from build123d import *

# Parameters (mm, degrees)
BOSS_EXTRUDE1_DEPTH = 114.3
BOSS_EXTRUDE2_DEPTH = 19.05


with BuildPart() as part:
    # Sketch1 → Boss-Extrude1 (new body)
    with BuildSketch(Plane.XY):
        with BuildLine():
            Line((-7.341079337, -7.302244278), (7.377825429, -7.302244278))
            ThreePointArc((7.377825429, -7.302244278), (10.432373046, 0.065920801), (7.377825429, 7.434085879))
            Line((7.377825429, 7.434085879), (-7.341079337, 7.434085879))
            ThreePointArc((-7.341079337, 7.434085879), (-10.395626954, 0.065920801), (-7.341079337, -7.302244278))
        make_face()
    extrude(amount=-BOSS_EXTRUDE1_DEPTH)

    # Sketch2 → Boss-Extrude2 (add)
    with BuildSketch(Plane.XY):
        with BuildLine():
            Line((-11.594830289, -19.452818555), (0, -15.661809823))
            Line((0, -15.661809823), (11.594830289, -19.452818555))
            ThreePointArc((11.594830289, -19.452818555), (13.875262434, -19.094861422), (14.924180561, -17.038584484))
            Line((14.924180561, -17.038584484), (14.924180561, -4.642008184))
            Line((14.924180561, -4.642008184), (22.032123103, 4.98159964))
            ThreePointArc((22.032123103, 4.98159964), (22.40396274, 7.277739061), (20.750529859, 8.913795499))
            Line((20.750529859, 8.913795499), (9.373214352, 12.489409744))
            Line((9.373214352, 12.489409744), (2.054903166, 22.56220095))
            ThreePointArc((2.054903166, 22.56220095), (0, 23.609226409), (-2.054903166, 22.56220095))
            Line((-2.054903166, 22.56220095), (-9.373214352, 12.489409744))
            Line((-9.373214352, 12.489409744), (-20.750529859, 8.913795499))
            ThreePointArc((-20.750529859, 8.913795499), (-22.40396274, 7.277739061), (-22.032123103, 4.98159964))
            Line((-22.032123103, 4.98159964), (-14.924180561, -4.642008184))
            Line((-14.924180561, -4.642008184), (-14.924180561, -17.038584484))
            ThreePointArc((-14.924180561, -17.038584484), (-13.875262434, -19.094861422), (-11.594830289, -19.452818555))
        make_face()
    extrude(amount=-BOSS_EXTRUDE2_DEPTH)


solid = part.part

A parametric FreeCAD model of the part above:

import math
import FreeCAD as App
import Part
import Sketcher
Q = App.Units.Quantity

doc = App.newDocument("Part")
body = doc.addObject("PartDesign::Body", "Body")

# Sketch on XY plane
sketch1 = body.newObject("Sketcher::SketchObject", "Sketch")
sketch1.AttachmentSupport = (doc.getObject("XY_Plane"), [""])
sketch1.MapMode = "FlatFace"
sketch1.addGeometry([
    Part.LineSegment(App.Vector(-7.341079, -7.302244, 0), App.Vector(7.377825, -7.302244, 0)),
    Part.ArcOfCircle(Part.Circle(App.Vector(0.018373, 0.065921, 0), App.Vector(0, 0, 1), 10.414), math.radians(-45.033896), math.radians(45.033896)),
    Part.LineSegment(App.Vector(7.377825, 7.434086, 0), App.Vector(-7.341079, 7.434086, 0)),
    Part.ArcOfCircle(Part.Circle(App.Vector(0.018373, 0.065921, 0), App.Vector(0, 0, 1), 10.414), math.radians(134.966104), math.radians(225.033896)),
], False)
sketch1.addConstraint([
    Sketcher.Constraint("Coincident", 0, 2, 1, 1),
    Sketcher.Constraint("Coincident", 1, 2, 2, 1),
    Sketcher.Constraint("Coincident", 2, 2, 3, 1),
    Sketcher.Constraint("Coincident", 3, 2, 0, 1),
    Sketcher.Constraint("Horizontal", 0),
    Sketcher.Constraint("Horizontal", 2),
    Sketcher.Constraint("Coincident", 3, 3, 1, 3),
    Sketcher.Constraint("Equal", 1, 3),
    Sketcher.Constraint("Vertical", 0, 2, 1, 2),
    Sketcher.Constraint("Radius", 1, Q("0.41 in")),
    Sketcher.Constraint("DistanceX", 0, 1, 0, 2, Q("14.718905 mm")),
    Sketcher.Constraint("DistanceY", -1, 1, 1, 3, Q("0.065921 mm")),
    Sketcher.Constraint("DistanceX", 2, 2, -1, 1, Q("7.341079 mm")),
])
pad1 = body.newObject("PartDesign::Pad", "Pad")
pad1.Profile = sketch1
pad1.Length = Q("4.5 in")
pad1.Reversed = True

# Sketch on XY plane
sketch2 = body.newObject("Sketcher::SketchObject", "Sketch001")
sketch2.AttachmentSupport = (doc.getObject("XY_Plane"), [""])
sketch2.MapMode = "FlatFace"
sketch2.addGeometry([
    Part.LineSegment(App.Vector(-11.59483, -19.452819, 0), App.Vector(0, -15.66181, 0)),  # 0
    Part.LineSegment(App.Vector(0, -15.66181, 0), App.Vector(11.59483, -19.452819, 0)),  # 1
    Part.ArcOfCircle(Part.Circle(App.Vector(12.384181, -17.038584, 0), App.Vector(0, 0, 1), 2.54), math.radians(-108.105509), math.radians(0)),  # 2
    Part.LineSegment(App.Vector(14.924181, -17.038584, 0), App.Vector(14.924181, -4.642008, 0)),  # 3
    Part.LineSegment(App.Vector(14.924181, -4.642008, 0), App.Vector(22.032123, 4.9816, 0)),  # 4
    Part.ArcOfCircle(Part.Circle(App.Vector(19.988992, 6.490645, 0), App.Vector(0, 0, 1), 2.54), math.radians(-36.449366), math.radians(72.553332)),  # 5
    Part.LineSegment(App.Vector(20.75053, 8.913795, 0), App.Vector(9.373214, 12.48941, 0)),  # 6
    Part.LineSegment(App.Vector(9.373214, 12.48941, 0), App.Vector(2.054903, 22.562201, 0)),  # 7
    Part.ArcOfCircle(Part.Circle(App.Vector(0, 21.069226, 0), App.Vector(0, 0, 1), 2.54), math.radians(36), math.radians(144)),  # 8
    Part.LineSegment(App.Vector(-2.054903, 22.562201, 0), App.Vector(-9.373214, 12.48941, 0)),  # 9
    Part.LineSegment(App.Vector(-9.373214, 12.48941, 0), App.Vector(-20.75053, 8.913795, 0)),  # 10
    Part.ArcOfCircle(Part.Circle(App.Vector(-19.988992, 6.490645, 0), App.Vector(0, 0, 1), 2.54), math.radians(107.446668), math.radians(216.449366)),  # 11
    Part.LineSegment(App.Vector(-22.032123, 4.9816, 0), App.Vector(-14.924181, -4.642008, 0)),  # 12
    Part.LineSegment(App.Vector(-14.924181, -4.642008, 0), App.Vector(-14.924181, -17.038584, 0)),  # 13
    Part.ArcOfCircle(Part.Circle(App.Vector(-12.384181, -17.038584, 0), App.Vector(0, 0, 1), 2.54), math.radians(-180), math.radians(-71.894491)),  # 14
], False)
sketch2.addConstraint([
    Sketcher.Constraint("Coincident", 0, 2, 1, 1),
    Sketcher.Constraint("Tangent", 1, 2, 2, 1),
    Sketcher.Constraint("Tangent", 2, 2, 3, 1),
    Sketcher.Constraint("Coincident", 3, 2, 4, 1),
    Sketcher.Constraint("Tangent", 4, 2, 5, 1),
    Sketcher.Constraint("Tangent", 5, 2, 6, 1),
    Sketcher.Constraint("Coincident", 6, 2, 7, 1),
    Sketcher.Constraint("Tangent", 7, 2, 8, 1),
    Sketcher.Constraint("Tangent", 8, 2, 9, 1),
    Sketcher.Constraint("Coincident", 9, 2, 10, 1),
    Sketcher.Constraint("Tangent", 10, 2, 11, 1),
    Sketcher.Constraint("Tangent", 11, 2, 12, 1),
    Sketcher.Constraint("Coincident", 12, 2, 13, 1),
    Sketcher.Constraint("Tangent", 13, 2, 14, 1),
    Sketcher.Constraint("Tangent", 14, 2, 0, 1),
    Sketcher.Constraint("Vertical", 3),
    Sketcher.Constraint("Vertical", 13),
    Sketcher.Constraint("Equal", 2, 5),
    Sketcher.Constraint("Equal", 5, 8),
    Sketcher.Constraint("Equal", 8, 11),
    Sketcher.Constraint("Equal", 11, 14),
    Sketcher.Constraint("Symmetric", 5, 3, 11, 3, -2),
    Sketcher.Constraint("Symmetric", 2, 3, 14, 3, -2),
    Sketcher.Constraint("Symmetric", 7, 2, 8, 2, -2),
    Sketcher.Constraint("PointOnObject", 0, 2, -2),
    Sketcher.Constraint("Horizontal", 6, 2, 9, 2),
    Sketcher.Constraint("Horizontal", 4, 2, 11, 2),
    Sketcher.Constraint("Radius", 2, Q("0.1 in")),
    Sketcher.Constraint("Angle", 7, Q("126 deg")),
    Sketcher.Constraint("DistanceY", -1, 1, 4, 2, Q("4.9816 mm")),
    Sketcher.Constraint("DistanceY", -1, 1, 7, 2, Q("22.562201 mm")),
    Sketcher.Constraint("DistanceY", 0, 2, 3, 2, Q("11.019802 mm")),
    Sketcher.Constraint("Distance", 6, Q("11.925952 mm")),
    Sketcher.Constraint("DistanceY", 3, 1, 3, 2, Q("12.396576 mm")),
    Sketcher.Constraint("DistanceX", -1, 1, 2, 3, Q("12.384181 mm")),
    Sketcher.Constraint("DistanceY", 0, 2, -1, 1, Q("15.66181 mm")),
    Sketcher.Constraint("DistanceX", -1, 1, 5, 2, Q("20.75053 mm")),
])
pad2 = body.newObject("PartDesign::Pad", "Pad001")
pad2.Profile = sketch2
pad2.Length = Q("0.75 in")
pad2.Reversed = True

doc.recompute()
